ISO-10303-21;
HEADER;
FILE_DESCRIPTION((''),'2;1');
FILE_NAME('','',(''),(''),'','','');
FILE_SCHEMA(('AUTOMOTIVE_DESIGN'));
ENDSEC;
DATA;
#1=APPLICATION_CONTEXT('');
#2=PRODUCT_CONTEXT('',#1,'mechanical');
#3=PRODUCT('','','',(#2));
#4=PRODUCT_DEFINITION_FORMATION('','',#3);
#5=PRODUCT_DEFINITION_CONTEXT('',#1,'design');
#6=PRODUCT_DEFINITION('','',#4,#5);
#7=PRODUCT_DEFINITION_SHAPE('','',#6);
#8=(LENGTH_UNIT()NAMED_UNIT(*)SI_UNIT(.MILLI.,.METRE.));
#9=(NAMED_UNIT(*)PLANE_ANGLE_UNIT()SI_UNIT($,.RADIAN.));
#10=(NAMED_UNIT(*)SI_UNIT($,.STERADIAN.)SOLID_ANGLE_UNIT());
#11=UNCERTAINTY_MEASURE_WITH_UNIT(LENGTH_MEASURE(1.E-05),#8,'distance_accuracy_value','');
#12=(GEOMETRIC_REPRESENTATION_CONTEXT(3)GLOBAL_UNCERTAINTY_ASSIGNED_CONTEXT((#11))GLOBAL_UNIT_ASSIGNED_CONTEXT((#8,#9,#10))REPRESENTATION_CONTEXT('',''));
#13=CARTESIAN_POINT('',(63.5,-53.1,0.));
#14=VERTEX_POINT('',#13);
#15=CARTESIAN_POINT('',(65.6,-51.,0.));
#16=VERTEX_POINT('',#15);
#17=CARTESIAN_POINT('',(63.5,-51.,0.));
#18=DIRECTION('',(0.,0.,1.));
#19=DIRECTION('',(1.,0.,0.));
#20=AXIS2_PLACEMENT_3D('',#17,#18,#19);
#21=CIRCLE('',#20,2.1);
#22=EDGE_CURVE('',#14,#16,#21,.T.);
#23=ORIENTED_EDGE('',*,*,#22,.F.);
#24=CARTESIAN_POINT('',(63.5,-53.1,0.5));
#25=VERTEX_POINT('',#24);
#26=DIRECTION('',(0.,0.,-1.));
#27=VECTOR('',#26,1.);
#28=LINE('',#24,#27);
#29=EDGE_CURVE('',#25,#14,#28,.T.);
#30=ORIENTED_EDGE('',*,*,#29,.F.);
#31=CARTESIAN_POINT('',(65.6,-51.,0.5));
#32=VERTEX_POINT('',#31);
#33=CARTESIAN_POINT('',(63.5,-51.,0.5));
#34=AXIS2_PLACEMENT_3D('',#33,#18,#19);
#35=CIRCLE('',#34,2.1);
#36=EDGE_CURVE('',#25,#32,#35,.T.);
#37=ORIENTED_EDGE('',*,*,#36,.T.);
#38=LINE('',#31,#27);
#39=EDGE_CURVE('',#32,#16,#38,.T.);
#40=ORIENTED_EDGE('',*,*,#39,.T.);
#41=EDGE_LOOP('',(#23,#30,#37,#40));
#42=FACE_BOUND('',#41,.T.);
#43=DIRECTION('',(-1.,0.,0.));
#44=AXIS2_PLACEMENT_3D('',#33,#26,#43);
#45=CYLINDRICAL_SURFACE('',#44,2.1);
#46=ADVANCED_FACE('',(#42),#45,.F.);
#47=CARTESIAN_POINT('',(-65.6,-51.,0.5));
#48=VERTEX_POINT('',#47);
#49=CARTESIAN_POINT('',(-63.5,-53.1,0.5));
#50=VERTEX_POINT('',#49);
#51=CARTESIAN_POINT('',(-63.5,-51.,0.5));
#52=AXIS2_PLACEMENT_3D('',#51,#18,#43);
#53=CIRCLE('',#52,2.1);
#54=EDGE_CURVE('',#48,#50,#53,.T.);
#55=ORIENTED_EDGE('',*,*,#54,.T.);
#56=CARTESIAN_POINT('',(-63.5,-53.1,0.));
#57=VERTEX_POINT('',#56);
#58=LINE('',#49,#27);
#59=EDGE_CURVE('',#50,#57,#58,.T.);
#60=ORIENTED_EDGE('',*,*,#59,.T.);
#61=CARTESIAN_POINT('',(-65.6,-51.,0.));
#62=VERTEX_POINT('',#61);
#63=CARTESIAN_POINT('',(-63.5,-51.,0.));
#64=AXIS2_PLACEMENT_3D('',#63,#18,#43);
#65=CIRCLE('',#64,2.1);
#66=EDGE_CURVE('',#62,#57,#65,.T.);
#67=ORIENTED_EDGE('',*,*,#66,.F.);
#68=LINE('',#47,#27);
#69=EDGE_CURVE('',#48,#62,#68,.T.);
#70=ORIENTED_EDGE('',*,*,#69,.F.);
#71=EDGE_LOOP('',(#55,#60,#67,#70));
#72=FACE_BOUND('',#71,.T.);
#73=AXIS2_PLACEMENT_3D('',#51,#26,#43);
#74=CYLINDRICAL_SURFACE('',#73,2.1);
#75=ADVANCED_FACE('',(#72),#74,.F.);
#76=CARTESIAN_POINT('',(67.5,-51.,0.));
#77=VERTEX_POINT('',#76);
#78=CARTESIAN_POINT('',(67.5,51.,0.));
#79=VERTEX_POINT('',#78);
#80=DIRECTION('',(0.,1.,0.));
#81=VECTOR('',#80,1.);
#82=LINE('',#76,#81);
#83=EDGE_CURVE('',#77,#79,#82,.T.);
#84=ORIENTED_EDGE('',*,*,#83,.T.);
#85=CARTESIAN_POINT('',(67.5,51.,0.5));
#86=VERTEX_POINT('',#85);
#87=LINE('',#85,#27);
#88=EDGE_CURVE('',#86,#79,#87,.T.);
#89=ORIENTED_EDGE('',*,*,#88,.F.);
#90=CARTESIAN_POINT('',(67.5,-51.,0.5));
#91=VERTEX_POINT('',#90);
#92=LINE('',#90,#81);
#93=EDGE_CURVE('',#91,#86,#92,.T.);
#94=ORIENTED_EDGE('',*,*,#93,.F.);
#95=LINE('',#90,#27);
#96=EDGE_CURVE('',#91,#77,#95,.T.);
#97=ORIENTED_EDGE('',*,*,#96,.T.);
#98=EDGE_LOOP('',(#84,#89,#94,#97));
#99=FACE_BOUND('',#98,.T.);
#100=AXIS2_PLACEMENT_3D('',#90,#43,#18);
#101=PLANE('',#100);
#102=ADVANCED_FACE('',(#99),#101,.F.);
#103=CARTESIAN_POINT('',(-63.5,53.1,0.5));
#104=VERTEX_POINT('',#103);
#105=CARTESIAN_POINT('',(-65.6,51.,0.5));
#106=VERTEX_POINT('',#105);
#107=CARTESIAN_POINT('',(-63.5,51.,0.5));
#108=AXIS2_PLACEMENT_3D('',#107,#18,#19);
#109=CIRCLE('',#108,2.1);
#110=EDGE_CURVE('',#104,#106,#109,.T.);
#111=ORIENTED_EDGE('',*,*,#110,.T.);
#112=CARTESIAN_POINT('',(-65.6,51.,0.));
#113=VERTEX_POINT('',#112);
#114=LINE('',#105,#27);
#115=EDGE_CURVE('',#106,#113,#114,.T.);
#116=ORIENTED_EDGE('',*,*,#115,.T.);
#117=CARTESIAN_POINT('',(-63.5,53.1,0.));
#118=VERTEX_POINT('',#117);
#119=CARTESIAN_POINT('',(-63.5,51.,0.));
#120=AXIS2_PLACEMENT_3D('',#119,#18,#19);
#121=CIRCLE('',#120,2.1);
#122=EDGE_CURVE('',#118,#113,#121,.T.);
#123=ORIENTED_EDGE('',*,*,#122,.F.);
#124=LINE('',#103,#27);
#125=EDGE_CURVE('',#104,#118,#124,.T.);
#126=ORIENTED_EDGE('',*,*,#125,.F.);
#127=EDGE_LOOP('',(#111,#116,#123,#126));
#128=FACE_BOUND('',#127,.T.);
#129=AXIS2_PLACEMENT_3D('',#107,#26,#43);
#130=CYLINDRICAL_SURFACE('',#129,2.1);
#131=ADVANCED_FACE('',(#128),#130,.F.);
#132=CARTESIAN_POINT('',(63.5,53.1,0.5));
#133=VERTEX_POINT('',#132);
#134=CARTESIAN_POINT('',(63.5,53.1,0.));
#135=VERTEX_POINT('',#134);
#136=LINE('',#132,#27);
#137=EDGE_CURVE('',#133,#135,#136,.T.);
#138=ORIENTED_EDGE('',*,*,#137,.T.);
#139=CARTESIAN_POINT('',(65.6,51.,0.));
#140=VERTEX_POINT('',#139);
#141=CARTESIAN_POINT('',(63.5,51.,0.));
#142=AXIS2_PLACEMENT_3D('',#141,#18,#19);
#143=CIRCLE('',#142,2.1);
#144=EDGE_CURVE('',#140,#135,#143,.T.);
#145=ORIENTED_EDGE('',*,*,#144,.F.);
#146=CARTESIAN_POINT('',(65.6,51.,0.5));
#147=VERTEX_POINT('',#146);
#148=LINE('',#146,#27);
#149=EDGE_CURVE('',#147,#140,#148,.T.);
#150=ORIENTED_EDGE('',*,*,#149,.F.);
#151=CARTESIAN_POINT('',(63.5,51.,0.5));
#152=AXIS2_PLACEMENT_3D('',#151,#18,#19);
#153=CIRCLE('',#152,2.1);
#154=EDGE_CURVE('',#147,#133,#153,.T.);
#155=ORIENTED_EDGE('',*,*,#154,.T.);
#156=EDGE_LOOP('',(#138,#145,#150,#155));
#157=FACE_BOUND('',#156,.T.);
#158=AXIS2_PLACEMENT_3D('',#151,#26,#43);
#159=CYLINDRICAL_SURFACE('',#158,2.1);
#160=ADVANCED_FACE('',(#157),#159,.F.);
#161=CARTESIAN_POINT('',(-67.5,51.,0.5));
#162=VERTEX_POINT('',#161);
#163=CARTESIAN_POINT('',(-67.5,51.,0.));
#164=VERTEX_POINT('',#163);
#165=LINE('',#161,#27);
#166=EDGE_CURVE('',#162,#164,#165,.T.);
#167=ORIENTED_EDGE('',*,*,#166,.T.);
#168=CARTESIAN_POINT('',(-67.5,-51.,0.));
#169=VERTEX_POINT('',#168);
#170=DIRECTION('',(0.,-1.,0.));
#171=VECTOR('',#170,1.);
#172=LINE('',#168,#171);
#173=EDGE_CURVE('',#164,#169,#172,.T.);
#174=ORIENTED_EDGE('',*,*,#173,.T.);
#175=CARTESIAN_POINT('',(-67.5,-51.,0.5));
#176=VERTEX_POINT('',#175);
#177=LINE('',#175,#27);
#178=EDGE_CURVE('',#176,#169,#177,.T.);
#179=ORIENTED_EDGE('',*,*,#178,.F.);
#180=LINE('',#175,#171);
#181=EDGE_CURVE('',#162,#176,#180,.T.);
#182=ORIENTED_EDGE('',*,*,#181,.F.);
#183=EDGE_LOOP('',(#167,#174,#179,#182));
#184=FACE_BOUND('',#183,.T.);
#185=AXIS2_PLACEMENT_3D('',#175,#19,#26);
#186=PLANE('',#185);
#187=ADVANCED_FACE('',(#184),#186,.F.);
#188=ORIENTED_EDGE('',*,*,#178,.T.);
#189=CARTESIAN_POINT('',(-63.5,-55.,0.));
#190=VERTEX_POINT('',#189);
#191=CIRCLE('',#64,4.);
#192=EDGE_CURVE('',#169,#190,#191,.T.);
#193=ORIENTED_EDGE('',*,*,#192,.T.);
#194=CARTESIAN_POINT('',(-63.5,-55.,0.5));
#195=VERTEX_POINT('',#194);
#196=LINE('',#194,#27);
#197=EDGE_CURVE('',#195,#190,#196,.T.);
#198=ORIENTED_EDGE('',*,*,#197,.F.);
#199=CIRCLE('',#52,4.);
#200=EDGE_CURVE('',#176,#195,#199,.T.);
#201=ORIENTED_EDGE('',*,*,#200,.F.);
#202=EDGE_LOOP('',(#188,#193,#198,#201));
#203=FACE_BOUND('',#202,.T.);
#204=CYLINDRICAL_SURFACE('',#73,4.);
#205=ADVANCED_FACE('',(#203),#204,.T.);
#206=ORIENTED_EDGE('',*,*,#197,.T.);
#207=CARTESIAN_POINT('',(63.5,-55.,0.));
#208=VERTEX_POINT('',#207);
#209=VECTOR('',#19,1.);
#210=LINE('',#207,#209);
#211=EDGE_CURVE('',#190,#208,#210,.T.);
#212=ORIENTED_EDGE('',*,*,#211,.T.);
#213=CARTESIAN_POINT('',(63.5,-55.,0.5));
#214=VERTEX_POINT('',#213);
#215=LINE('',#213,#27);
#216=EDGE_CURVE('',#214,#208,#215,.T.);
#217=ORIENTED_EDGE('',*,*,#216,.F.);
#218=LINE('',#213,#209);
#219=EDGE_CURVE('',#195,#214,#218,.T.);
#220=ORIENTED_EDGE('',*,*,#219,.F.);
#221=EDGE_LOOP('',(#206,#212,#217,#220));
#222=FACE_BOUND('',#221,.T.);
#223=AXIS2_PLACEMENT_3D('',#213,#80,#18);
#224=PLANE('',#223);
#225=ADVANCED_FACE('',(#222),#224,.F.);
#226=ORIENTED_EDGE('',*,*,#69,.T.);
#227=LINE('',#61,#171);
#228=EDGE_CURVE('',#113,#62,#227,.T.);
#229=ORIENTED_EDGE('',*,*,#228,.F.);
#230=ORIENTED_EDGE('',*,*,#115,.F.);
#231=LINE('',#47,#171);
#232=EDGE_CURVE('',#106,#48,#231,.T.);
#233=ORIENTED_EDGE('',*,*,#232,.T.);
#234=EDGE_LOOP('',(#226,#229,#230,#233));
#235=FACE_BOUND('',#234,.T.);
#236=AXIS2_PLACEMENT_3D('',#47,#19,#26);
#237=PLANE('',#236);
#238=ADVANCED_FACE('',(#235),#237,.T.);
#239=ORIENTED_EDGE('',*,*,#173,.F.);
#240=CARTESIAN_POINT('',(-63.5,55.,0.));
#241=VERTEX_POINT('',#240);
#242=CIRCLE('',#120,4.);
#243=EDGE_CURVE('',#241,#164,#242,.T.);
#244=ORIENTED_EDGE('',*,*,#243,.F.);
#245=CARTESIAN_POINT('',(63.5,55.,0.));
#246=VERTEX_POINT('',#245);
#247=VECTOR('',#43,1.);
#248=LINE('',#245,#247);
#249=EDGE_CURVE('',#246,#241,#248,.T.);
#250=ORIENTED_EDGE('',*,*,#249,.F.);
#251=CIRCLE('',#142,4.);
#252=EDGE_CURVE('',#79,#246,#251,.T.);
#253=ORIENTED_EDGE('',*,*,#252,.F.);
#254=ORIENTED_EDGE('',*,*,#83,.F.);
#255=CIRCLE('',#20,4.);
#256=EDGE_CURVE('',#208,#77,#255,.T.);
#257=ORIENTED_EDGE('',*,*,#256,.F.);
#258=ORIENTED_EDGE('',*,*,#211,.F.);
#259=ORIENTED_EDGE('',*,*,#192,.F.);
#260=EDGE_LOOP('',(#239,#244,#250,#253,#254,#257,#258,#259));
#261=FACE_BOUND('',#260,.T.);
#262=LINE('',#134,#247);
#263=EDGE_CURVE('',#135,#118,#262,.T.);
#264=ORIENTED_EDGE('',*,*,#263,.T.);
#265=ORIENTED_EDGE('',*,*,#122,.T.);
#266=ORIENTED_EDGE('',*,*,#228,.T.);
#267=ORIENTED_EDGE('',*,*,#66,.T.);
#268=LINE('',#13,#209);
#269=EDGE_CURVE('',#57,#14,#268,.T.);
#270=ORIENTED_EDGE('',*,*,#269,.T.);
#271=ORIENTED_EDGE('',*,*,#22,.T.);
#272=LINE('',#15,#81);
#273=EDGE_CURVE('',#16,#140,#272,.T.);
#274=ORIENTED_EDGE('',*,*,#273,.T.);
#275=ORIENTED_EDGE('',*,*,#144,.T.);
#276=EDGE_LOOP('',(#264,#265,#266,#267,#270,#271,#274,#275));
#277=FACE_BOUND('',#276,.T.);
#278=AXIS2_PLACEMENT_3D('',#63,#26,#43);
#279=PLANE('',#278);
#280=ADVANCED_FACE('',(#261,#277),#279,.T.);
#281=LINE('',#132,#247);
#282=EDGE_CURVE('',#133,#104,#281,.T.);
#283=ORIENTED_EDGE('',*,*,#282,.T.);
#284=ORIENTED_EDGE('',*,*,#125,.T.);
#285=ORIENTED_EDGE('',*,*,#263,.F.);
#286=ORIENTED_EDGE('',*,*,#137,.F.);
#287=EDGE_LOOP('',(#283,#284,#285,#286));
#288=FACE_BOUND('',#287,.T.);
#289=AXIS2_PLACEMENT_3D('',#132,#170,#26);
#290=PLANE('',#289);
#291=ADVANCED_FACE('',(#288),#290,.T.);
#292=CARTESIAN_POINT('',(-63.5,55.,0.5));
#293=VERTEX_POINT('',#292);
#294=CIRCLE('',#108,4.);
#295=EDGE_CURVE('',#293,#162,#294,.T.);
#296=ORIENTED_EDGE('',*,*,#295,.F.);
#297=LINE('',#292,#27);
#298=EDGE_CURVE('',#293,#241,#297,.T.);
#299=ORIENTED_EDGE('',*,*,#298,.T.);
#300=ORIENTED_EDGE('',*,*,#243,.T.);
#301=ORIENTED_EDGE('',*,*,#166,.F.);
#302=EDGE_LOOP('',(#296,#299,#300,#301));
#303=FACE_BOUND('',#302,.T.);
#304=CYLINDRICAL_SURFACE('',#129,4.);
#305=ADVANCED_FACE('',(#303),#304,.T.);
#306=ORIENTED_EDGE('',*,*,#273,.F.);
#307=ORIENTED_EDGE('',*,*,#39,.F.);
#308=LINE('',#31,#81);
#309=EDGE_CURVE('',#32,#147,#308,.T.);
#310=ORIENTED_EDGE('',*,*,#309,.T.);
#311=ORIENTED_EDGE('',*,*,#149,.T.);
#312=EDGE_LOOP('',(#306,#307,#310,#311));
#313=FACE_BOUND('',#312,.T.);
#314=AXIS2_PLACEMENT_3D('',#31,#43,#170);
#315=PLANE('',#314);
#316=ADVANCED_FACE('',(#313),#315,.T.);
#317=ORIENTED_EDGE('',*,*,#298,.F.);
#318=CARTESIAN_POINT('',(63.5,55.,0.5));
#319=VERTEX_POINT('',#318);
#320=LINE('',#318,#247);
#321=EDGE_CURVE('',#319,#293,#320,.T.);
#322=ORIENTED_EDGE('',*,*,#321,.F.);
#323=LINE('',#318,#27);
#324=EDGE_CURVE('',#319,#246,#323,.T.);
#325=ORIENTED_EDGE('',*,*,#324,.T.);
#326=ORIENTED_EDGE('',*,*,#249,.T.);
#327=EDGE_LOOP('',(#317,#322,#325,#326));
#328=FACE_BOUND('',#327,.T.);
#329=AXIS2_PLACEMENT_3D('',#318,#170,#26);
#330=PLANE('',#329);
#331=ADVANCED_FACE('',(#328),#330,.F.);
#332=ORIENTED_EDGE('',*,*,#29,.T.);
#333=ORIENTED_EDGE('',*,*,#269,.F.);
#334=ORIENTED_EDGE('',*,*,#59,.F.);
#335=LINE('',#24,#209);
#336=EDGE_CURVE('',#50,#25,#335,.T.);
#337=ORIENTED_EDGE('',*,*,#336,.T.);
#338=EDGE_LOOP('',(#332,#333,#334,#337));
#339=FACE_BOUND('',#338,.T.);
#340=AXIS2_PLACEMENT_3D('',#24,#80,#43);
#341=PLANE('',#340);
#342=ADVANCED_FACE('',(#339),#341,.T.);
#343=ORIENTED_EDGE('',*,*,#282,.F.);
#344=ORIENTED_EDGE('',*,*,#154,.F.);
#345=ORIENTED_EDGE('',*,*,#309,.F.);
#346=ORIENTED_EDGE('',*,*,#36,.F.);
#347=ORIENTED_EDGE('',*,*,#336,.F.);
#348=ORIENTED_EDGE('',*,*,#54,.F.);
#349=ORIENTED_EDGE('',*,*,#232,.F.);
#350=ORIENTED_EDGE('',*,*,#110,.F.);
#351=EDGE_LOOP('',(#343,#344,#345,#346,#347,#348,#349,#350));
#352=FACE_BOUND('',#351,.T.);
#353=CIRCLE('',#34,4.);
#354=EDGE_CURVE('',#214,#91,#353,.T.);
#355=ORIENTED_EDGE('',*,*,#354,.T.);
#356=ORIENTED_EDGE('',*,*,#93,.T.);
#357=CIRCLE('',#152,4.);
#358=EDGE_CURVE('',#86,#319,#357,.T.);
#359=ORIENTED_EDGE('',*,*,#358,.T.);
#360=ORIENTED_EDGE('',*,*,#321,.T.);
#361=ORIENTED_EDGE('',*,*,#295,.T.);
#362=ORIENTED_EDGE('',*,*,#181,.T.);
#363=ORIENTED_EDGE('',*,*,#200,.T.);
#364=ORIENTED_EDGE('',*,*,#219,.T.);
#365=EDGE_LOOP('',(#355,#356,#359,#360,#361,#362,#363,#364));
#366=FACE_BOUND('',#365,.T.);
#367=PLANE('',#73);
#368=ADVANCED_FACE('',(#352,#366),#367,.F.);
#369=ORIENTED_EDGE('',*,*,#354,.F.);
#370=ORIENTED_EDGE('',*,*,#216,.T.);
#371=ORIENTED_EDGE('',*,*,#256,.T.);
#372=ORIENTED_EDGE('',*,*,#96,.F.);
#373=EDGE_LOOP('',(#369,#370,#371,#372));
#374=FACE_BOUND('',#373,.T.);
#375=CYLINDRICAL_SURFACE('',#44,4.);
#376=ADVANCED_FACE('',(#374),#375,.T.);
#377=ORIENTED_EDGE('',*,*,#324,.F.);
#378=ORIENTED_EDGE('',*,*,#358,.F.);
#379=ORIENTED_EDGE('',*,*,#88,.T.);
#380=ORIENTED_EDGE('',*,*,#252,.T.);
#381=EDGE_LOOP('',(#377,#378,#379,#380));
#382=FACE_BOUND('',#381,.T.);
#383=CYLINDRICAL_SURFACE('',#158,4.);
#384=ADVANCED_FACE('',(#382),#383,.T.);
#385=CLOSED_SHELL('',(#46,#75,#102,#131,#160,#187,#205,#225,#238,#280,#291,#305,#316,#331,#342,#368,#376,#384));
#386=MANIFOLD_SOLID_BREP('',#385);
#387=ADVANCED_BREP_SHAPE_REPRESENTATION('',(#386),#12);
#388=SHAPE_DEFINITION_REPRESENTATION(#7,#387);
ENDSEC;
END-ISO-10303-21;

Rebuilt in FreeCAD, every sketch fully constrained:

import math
import FreeCAD as App
import Part
import Sketcher

V = App.Vector
Q = App.Units.Quantity

doc = App.newDocument("Part")
body = doc.addObject("PartDesign::Body", "Body")

# Sketch on XY plane
sketch1 = body.newObject("Sketcher::SketchObject", "Sketch")
sketch1.AttachmentSupport = (doc.getObject("XY_Plane"), [""])
sketch1.MapMode = "FlatFace"
sketch1.addGeometry([
    Part.LineSegment(V(-63.5, -55, 0), V(63.5, -55, 0)),  # 0
    Part.ArcOfCircle(Part.Circle(V(63.5, -51, 0), V(0, 0, 1), 4), math.radians(-90), math.radians(0)),  # 1
    Part.LineSegment(V(67.5, -51, 0), V(67.5, 51, 0)),  # 2
    Part.ArcOfCircle(Part.Circle(V(63.5, 51, 0), V(0, 0, 1), 4), math.radians(0), math.radians(90)),  # 3
    Part.LineSegment(V(63.5, 55, 0), V(-63.5, 55, 0)),  # 4
    Part.ArcOfCircle(Part.Circle(V(-63.5, 51, 0), V(0, 0, 1), 4), math.radians(90), math.radians(180)),  # 5
    Part.LineSegment(V(-67.5, 51, 0), V(-67.5, -51, 0)),  # 6
    Part.ArcOfCircle(Part.Circle(V(-63.5, -51, 0), V(0, 0, 1), 4), math.radians(180), math.radians(270)),  # 7
    Part.ArcOfCircle(Part.Circle(V(63.5, -51, 0), V(0, 0, 1), 2.1), math.radians(-90), math.radians(0)),  # 8
    Part.LineSegment(V(63.5, -53.1, 0), V(-63.5, -53.1, 0)),  # 9
    Part.ArcOfCircle(Part.Circle(V(-63.5, -51, 0), V(0, 0, 1), 2.1), math.radians(-180), math.radians(-90)),  # 10
    Part.LineSegment(V(-65.6, -51, 0), V(-65.6, 51, 0)),  # 11
    Part.ArcOfCircle(Part.Circle(V(-63.5, 51, 0), V(0, 0, 1), 2.1), math.radians(90), math.radians(180)),  # 12
    Part.LineSegment(V(-63.5, 53.1, 0), V(63.5, 53.1, 0)),  # 13
    Part.ArcOfCircle(Part.Circle(V(63.5, 51, 0), V(0, 0, 1), 2.1), math.radians(0), math.radians(90)),  # 14
    Part.LineSegment(V(65.6, 51, 0), V(65.6, -51, 0)),  # 15
], False)
sketch1.addConstraint([
    Sketcher.Constraint("Tangent", 0, 2, 1, 1),
    Sketcher.Constraint("Tangent", 1, 2, 2, 1),
    Sketcher.Constraint("Tangent", 2, 2, 3, 1),
    Sketcher.Constraint("Tangent", 3, 2, 4, 1),
    Sketcher.Constraint("Tangent", 4, 2, 5, 1),
    Sketcher.Constraint("Tangent", 5, 2, 6, 1),
    Sketcher.Constraint("Tangent", 6, 2, 7, 1),
    Sketcher.Constraint("Tangent", 7, 2, 0, 1),
    Sketcher.Constraint("Tangent", 8, 1, 9, 1),
    Sketcher.Constraint("Tangent", 9, 2, 10, 2),
    Sketcher.Constraint("Tangent", 10, 1, 11, 1),
    Sketcher.Constraint("Tangent", 11, 2, 12, 2),
    Sketcher.Constraint("Tangent", 12, 1, 13, 1),
    Sketcher.Constraint("Tangent", 13, 2, 14, 2),
    Sketcher.Constraint("Tangent", 14, 1, 15, 1),
    Sketcher.Constraint("Tangent", 15, 2, 8, 2),
    Sketcher.Constraint("Horizontal", 0),
    Sketcher.Constraint("Vertical", 2),
    Sketcher.Constraint("Horizontal", 4),
    Sketcher.Constraint("Vertical", 6),
    Sketcher.Constraint("Horizontal", 9),
    Sketcher.Constraint("Vertical", 11),
    Sketcher.Constraint("Horizontal", 13),
    Sketcher.Constraint("Vertical", 15),
    Sketcher.Constraint("Coincident", 8, 3, 1, 3),
    Sketcher.Constraint("Coincident", 10, 3, 7, 3),
    Sketcher.Constraint("Coincident", 12, 3, 5, 3),
    Sketcher.Constraint("Equal", 1, 3),
    Sketcher.Constraint("Equal", 3, 5),
    Sketcher.Constraint("Equal", 5, 7),
    Sketcher.Constraint("Equal", 12, 14),
    Sketcher.Constraint("Symmetric", 1, 3, 5, 3, -1, 1),
    Sketcher.Constraint("Radius", 1, Q("4 mm")),
    Sketcher.Constraint("Radius", 8, Q("2.1 mm")),
    Sketcher.Constraint("DistanceX", 0, 1, 0, 2, Q("127 mm")),
    Sketcher.Constraint("DistanceY", 2, 1, 2, 2, Q("102 mm")),
])
pad1 = body.newObject("PartDesign::Pad", "Pad")
pad1.Profile = sketch1
pad1.Length = 0.5

doc.recompute()
